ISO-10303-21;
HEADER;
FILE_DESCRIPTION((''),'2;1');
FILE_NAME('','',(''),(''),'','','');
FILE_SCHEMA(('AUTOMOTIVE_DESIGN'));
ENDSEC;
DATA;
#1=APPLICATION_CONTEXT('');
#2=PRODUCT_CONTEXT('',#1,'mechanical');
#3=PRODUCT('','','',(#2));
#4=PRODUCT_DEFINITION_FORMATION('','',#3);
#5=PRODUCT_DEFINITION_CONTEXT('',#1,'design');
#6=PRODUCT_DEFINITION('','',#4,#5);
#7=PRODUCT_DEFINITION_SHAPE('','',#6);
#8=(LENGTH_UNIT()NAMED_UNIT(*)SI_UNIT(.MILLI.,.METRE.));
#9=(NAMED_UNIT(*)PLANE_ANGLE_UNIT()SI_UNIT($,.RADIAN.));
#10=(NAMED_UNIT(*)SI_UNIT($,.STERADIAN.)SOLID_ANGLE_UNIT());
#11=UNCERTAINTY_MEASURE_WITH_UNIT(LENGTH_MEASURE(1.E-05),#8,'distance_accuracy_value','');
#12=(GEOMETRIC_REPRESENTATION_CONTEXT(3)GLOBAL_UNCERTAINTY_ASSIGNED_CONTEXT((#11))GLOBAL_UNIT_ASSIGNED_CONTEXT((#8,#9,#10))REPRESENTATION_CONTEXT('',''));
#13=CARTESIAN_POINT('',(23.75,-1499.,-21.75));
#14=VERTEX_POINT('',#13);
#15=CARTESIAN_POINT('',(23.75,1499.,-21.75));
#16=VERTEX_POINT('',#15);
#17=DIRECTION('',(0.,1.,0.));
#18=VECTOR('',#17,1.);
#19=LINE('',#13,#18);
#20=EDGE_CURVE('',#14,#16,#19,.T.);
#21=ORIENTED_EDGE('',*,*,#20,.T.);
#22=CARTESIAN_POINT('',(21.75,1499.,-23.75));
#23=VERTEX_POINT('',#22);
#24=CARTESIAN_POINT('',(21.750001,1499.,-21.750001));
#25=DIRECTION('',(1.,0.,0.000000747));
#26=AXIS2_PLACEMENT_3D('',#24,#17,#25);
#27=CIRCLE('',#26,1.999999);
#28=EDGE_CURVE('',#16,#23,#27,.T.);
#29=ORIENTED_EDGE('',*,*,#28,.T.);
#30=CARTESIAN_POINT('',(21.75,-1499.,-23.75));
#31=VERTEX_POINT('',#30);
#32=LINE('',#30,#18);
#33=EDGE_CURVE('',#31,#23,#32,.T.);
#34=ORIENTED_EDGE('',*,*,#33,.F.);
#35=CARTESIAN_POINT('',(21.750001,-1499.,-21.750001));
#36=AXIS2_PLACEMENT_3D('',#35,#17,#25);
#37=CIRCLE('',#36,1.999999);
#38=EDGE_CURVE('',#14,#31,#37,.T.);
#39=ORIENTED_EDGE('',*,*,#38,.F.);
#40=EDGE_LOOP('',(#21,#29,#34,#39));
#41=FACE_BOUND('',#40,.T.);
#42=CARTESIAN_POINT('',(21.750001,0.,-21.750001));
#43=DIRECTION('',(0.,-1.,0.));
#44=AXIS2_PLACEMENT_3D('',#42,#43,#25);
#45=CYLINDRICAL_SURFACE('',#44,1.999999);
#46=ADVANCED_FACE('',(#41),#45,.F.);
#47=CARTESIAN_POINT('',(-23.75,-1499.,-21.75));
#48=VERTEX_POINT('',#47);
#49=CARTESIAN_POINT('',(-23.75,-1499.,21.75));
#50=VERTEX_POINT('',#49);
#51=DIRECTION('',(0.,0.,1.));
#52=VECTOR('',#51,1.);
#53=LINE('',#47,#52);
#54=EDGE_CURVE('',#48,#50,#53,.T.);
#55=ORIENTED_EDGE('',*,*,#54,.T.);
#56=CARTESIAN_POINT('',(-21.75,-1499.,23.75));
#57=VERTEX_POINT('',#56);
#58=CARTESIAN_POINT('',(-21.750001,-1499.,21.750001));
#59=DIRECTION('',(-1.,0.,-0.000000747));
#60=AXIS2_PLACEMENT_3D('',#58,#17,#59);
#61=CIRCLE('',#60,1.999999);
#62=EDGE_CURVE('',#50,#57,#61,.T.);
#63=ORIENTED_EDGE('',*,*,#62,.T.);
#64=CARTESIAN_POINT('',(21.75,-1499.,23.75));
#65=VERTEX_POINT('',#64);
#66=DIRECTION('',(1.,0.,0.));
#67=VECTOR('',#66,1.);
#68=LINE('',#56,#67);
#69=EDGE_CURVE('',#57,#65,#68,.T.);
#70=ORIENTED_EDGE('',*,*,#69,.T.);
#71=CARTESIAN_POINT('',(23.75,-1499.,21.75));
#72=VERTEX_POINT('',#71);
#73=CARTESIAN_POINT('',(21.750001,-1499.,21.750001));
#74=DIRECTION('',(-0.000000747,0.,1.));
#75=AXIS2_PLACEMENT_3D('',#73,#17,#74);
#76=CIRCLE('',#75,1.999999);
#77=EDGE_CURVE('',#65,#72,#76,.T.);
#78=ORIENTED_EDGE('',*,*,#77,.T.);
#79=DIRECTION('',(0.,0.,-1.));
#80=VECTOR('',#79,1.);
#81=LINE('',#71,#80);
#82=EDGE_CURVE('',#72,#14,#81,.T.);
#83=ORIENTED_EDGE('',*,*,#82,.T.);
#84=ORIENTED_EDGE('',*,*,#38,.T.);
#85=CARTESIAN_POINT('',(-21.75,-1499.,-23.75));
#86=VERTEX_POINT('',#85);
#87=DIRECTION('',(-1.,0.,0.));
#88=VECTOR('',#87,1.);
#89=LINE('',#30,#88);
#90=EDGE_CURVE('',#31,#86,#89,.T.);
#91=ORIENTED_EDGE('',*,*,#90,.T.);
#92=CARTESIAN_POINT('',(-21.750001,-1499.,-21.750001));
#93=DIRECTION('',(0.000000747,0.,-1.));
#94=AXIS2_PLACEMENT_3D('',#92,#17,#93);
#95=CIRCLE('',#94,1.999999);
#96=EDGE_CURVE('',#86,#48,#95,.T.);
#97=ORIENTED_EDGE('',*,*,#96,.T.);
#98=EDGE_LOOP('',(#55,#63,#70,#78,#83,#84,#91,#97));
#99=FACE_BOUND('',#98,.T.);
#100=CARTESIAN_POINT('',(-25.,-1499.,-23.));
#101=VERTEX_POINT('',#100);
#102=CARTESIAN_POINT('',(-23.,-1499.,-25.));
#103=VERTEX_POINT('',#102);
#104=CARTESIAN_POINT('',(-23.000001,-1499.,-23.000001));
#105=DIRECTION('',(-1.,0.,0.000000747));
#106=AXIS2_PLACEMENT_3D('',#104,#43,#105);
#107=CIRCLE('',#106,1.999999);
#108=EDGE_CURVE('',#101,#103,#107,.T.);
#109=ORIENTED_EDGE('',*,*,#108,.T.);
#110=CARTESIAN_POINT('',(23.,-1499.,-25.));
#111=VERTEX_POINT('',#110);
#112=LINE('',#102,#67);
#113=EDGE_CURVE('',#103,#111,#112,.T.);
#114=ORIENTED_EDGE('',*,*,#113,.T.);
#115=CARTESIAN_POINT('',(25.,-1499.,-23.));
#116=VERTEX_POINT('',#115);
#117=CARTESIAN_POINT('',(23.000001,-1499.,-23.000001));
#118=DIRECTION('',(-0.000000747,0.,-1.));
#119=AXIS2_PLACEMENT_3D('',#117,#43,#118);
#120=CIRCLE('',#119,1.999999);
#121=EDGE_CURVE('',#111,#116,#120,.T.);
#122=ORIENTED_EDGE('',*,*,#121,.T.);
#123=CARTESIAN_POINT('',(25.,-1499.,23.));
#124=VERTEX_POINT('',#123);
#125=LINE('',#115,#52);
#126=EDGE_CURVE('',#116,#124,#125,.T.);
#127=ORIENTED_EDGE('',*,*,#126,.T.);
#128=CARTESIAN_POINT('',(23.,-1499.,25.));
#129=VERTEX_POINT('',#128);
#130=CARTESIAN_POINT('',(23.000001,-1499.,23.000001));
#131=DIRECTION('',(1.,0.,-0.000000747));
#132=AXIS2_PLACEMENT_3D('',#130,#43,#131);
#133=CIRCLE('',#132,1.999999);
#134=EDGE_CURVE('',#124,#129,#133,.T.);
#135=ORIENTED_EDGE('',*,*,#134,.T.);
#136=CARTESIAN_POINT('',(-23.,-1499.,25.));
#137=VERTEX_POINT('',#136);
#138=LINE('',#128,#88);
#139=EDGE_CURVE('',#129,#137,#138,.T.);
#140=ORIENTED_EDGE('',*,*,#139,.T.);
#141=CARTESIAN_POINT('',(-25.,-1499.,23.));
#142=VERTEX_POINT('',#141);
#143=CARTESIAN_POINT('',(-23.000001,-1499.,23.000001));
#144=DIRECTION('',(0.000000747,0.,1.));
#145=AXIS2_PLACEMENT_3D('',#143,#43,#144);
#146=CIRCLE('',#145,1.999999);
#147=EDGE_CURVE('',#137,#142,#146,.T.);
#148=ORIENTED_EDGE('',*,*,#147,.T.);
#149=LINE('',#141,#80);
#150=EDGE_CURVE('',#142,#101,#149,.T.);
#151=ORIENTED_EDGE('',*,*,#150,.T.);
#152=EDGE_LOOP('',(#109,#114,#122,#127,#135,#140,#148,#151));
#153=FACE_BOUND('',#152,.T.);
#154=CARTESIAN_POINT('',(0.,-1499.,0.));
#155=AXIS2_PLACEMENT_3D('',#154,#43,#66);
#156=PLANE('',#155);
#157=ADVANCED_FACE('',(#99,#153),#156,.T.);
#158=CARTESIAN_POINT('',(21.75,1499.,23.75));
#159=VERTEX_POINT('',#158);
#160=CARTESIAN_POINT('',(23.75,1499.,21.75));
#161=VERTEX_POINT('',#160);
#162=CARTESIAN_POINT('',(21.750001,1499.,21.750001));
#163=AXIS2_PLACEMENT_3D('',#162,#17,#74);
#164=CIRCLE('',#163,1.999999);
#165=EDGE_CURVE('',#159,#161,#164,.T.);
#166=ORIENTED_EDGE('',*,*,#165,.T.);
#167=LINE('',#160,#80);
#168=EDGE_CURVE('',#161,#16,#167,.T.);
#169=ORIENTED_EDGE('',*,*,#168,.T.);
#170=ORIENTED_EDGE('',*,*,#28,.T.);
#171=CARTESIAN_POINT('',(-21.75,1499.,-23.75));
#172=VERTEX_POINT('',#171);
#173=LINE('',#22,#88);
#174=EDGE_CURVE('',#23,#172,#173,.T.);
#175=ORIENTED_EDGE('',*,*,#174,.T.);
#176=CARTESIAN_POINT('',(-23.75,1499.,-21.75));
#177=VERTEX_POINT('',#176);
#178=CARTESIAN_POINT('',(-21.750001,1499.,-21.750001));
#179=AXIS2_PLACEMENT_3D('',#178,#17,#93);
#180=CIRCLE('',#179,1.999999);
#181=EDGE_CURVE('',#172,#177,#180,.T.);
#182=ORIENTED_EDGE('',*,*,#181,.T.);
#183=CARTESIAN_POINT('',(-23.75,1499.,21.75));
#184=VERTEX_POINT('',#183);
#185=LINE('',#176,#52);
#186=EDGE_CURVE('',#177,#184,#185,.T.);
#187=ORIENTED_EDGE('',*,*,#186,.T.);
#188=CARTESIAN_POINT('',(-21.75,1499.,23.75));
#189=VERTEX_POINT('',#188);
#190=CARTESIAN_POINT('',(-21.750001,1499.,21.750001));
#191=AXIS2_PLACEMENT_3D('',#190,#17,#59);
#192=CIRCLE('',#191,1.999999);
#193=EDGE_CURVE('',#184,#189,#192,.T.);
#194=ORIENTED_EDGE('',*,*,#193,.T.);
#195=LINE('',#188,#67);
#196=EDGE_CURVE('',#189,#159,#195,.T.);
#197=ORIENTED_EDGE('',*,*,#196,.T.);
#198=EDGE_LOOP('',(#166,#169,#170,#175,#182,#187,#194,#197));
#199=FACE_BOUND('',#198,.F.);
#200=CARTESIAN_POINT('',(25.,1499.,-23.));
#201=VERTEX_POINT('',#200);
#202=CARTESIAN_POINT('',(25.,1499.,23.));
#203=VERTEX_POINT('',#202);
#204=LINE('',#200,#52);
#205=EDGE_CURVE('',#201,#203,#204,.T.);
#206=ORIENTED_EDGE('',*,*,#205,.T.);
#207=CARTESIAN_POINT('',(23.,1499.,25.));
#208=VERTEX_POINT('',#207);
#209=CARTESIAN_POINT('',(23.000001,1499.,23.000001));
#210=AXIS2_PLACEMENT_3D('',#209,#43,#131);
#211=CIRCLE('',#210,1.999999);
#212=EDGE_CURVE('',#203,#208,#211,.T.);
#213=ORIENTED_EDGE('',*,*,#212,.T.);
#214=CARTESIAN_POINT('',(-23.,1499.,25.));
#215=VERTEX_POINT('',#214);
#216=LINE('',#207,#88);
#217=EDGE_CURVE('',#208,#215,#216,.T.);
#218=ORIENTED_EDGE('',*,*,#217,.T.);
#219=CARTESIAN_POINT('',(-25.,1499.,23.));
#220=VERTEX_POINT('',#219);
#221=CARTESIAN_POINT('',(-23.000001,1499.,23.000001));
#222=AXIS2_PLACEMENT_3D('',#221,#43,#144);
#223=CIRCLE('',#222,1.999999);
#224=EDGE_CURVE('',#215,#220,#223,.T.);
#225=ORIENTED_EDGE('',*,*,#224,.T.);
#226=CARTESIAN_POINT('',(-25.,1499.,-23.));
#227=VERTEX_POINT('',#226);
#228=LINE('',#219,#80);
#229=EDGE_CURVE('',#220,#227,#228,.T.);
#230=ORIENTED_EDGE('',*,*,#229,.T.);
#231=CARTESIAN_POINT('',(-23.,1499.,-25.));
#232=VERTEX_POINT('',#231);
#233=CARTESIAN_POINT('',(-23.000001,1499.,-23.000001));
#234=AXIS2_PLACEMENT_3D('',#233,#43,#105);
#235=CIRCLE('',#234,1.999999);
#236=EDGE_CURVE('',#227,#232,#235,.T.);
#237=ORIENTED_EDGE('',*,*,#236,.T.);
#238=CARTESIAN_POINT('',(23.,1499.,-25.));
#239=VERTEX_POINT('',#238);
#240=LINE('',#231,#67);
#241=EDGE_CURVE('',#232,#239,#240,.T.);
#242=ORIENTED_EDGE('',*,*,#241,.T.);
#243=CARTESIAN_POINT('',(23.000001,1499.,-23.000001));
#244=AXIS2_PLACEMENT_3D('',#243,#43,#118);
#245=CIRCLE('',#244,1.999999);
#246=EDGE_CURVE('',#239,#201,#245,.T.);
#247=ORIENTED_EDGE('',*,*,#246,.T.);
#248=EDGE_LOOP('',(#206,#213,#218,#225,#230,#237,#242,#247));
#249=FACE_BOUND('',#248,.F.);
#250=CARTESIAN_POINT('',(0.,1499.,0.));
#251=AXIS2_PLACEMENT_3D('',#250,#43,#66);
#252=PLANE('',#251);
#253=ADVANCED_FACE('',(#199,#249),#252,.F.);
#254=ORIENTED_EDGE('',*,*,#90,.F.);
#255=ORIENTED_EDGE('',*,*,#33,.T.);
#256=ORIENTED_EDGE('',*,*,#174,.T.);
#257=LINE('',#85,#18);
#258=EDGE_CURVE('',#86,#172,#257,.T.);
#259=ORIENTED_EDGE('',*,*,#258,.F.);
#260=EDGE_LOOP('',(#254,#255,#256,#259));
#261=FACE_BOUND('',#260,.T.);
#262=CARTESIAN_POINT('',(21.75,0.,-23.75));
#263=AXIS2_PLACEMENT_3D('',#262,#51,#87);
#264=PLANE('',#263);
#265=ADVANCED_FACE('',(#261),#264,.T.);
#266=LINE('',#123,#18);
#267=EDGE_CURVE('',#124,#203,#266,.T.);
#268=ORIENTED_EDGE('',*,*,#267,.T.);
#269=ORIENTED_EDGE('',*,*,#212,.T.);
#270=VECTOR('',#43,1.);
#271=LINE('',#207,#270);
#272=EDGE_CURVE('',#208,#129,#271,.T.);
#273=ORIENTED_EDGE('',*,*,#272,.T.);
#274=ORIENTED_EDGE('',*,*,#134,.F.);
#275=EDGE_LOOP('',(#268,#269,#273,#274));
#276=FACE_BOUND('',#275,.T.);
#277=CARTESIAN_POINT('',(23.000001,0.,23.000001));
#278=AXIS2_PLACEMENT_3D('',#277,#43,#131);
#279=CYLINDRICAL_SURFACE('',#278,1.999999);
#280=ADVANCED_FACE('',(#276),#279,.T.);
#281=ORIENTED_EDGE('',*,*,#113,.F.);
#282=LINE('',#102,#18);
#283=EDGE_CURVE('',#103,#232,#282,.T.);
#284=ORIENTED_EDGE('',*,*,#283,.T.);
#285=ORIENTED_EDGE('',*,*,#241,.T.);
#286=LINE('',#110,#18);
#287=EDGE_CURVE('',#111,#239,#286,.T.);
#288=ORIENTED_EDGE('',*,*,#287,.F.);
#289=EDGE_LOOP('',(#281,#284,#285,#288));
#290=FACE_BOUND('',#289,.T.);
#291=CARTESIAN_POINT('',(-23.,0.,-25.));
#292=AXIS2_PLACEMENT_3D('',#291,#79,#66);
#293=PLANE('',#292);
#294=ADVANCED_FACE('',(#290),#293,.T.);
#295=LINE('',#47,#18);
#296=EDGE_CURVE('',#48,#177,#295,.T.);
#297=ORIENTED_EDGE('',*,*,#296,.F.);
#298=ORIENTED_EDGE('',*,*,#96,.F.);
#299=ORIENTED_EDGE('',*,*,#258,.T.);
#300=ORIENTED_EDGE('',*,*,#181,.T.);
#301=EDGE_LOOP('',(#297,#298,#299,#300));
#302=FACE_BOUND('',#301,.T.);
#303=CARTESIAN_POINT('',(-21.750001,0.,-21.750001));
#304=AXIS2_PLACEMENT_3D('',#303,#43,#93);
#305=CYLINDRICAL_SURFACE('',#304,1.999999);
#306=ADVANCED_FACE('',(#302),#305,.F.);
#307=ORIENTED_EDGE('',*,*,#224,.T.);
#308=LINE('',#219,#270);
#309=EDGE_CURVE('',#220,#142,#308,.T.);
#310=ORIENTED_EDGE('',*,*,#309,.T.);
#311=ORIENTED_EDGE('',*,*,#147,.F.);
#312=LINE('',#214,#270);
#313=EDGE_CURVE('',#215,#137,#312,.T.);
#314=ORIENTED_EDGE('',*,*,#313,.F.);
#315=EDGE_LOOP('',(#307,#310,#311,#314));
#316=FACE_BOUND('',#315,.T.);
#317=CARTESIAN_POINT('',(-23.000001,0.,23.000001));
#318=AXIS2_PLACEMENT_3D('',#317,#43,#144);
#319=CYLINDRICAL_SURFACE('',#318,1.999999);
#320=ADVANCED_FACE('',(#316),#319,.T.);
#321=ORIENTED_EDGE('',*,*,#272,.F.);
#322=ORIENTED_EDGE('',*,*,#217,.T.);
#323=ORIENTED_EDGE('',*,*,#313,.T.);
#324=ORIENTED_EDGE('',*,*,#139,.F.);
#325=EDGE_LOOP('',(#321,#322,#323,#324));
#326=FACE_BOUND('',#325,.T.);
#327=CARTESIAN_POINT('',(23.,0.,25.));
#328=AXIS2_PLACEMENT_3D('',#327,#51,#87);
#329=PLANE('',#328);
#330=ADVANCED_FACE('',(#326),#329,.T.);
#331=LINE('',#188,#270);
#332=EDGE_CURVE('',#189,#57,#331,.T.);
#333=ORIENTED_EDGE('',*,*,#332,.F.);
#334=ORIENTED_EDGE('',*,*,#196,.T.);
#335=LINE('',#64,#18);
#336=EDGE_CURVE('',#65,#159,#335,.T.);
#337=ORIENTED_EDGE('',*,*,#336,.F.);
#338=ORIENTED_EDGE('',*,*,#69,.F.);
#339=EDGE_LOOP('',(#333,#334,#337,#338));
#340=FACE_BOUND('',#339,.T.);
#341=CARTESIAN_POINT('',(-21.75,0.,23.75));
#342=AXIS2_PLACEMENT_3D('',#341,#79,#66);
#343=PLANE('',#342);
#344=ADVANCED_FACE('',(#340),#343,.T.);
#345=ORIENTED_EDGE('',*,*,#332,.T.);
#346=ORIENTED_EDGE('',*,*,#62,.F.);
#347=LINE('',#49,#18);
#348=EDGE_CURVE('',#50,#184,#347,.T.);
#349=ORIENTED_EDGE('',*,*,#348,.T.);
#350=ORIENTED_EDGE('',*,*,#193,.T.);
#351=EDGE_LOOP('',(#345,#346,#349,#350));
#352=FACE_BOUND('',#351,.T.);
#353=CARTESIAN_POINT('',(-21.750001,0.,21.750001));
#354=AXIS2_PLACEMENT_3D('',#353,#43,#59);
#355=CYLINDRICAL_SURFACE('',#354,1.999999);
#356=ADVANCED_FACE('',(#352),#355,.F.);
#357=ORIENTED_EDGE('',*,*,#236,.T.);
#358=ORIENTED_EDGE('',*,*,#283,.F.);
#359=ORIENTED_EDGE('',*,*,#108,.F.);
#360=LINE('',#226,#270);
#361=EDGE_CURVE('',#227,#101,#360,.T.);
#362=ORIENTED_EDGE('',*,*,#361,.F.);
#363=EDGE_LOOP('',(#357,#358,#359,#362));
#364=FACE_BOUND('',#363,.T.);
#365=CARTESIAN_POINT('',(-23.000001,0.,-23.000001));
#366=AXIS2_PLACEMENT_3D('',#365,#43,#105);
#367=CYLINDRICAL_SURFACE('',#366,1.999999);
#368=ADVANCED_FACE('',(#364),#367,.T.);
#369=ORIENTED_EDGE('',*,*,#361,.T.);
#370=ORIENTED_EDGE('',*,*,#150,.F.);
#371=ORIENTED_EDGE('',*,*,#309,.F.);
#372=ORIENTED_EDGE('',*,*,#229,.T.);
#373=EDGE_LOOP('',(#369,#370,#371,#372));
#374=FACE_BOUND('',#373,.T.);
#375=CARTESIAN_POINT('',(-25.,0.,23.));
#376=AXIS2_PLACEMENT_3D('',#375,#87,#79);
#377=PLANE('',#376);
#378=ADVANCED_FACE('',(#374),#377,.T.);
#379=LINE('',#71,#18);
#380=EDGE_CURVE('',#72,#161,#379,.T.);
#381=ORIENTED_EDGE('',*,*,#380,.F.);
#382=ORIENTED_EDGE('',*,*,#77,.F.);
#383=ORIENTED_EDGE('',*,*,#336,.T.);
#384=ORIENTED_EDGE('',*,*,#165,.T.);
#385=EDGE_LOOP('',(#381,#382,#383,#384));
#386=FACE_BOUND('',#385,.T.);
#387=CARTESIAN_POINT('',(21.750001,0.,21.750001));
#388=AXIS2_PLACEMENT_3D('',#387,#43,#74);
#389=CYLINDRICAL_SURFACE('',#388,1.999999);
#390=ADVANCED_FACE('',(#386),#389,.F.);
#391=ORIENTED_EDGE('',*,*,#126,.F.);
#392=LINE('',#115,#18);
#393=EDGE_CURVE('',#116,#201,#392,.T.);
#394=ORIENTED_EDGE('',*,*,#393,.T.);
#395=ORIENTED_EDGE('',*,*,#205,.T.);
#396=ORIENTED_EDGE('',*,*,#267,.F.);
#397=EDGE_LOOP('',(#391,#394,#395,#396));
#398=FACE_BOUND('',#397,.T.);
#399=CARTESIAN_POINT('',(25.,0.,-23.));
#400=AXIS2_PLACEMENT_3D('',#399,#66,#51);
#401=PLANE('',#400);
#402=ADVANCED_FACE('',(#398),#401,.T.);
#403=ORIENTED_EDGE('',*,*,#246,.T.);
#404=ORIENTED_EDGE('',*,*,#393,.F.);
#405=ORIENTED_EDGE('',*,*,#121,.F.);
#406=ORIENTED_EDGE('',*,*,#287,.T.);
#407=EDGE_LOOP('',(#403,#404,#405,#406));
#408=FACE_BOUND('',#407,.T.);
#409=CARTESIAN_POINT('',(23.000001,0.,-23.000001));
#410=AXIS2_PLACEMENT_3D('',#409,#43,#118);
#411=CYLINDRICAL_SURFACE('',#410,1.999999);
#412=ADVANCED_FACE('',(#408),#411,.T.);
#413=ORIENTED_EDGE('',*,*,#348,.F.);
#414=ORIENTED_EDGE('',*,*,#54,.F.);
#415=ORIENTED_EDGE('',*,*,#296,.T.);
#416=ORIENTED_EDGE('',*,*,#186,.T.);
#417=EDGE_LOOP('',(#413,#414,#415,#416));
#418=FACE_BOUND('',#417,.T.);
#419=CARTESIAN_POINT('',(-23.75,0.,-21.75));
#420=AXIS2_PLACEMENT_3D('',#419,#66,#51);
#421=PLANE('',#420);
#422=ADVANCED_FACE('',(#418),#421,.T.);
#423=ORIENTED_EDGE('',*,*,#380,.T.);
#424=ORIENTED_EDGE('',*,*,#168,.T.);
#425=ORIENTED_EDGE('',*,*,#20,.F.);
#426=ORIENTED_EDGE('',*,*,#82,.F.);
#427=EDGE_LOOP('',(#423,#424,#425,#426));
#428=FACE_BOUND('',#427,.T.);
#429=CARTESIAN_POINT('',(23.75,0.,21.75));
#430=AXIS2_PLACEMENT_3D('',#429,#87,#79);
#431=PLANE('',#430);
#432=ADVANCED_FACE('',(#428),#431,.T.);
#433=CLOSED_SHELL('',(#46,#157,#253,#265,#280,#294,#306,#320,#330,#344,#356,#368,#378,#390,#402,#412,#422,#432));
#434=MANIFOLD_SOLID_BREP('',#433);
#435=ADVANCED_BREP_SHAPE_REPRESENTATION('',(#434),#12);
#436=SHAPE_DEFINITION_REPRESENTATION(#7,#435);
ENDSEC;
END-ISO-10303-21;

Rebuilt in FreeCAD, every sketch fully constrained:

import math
import FreeCAD as App
import Part
import Sketcher

V = App.Vector
Q = App.Units.Quantity

doc = App.newDocument("Part")
params = doc.addObject("Spreadsheet::Sheet", "Params")
for row, (alias, value) in enumerate([
    ("sketch1_radius", "1.999999 mm"),
    ("sketch1_width", "46 mm"),
    ("sketch1_width2", "43.5 mm"),
    ("pad1_length", "2998 mm"),
], start=1):
    params.set(f"A{row}", alias)
    params.set(f"B{row}", "=" + value)
    params.setAlias(f"B{row}", alias)

body = doc.addObject("PartDesign::Body", "Body")

# Sketch on XZ plane
sketch1 = body.newObject("Sketcher::SketchObject", "Sketch")
sketch1.AttachmentSupport = (doc.getObject("XZ_Plane"), [""])
sketch1.MapMode = "FlatFace"
sketch1.addGeometry(Part.ArcOfCircle(Part.Circle(V(23.000001, 23.000001, 0), V(0, 0, 1), 1.999999), math.radians(-0.000043), math.radians(90.000043)), False)
sketch1.addGeometry(Part.LineSegment(V(23, 25, 0), V(-23, 25, 0)), False)
sketch1.addGeometry(Part.ArcOfCircle(Part.Circle(V(-23.000001, 23.000001, 0), V(0, 0, 1), 1.999999), math.radians(89.999957), math.radians(180.000043)), False)
sketch1.addGeometry(Part.LineSegment(V(-25, 23, 0), V(-25, -23, 0)), False)
sketch1.addGeometry(Part.ArcOfCircle(Part.Circle(V(-23.000001, -23.000001, 0), V(0, 0, 1), 1.999999), math.radians(179.999957), math.radians(270.000043)), False)
sketch1.addGeometry(Part.LineSegment(V(-23, -25, 0), V(23, -25, 0)), False)
sketch1.addGeometry(Part.ArcOfCircle(Part.Circle(V(23.000001, -23.000001, 0), V(0, 0, 1), 1.999999), math.radians(-90.000043), math.radians(0.000043)), False)
sketch1.addGeometry(Part.LineSegment(V(25, -23, 0), V(25, 23, 0)), False)
sketch1.addGeometry(Part.ArcOfCircle(Part.Circle(V(-21.750001, 21.750001, 0), V(0, 0, 1), 1.999999), math.radians(89.999957), math.radians(180.000043)), False)
sketch1.addGeometry(Part.LineSegment(V(-21.75, 23.75, 0), V(21.75, 23.75, 0)), False)
sketch1.addGeometry(Part.ArcOfCircle(Part.Circle(V(21.750001, 21.750001, 0), V(0, 0, 1), 1.999999), math.radians(-0.000043), math.radians(90.000043)), False)
sketch1.addGeometry(Part.LineSegment(V(23.75, 21.75, 0), V(23.75, -21.75, 0)), False)
sketch1.addGeometry(Part.ArcOfCircle(Part.Circle(V(21.750001, -21.750001, 0), V(0, 0, 1), 1.999999), math.radians(-90.000043), math.radians(0.000043)), False)
sketch1.addGeometry(Part.LineSegment(V(21.75, -23.75, 0), V(-21.75, -23.75, 0)), False)
sketch1.addGeometry(Part.ArcOfCircle(Part.Circle(V(-21.750001, -21.750001, 0), V(0, 0, 1), 1.999999), math.radians(179.999957), math.radians(270.000043)), False)
sketch1.addGeometry(Part.LineSegment(V(-23.75, -21.75, 0), V(-23.75, 21.75, 0)), False)
sketch1.addConstraint(Sketcher.Constraint("Tangent", 0, 2, 1, 1))
sketch1.addConstraint(Sketcher.Constraint("Tangent", 1, 2, 2, 1))
sketch1.addConstraint(Sketcher.Constraint("Tangent", 2, 2, 3, 1))
sketch1.addConstraint(Sketcher.Constraint("Tangent", 3, 2, 4, 1))
sketch1.addConstraint(Sketcher.Constraint("Tangent", 4, 2, 5, 1))
sketch1.addConstraint(Sketcher.Constraint("Tangent", 5, 2, 6, 1))
sketch1.addConstraint(Sketcher.Constraint("Tangent", 6, 2, 7, 1))
sketch1.addConstraint(Sketcher.Constraint("Tangent", 7, 2, 0, 1))
sketch1.addConstraint(Sketcher.Constraint("Tangent", 8, 1, 9, 1))
sketch1.addConstraint(Sketcher.Constraint("Tangent", 9, 2, 10, 2))
sketch1.addConstraint(Sketcher.Constraint("Tangent", 10, 1, 11, 1))
sketch1.addConstraint(Sketcher.Constraint("Tangent", 11, 2, 12, 2))
sketch1.addConstraint(Sketcher.Constraint("Tangent", 12, 1, 13, 1))
sketch1.addConstraint(Sketcher.Constraint("Tangent", 13, 2, 14, 2))
sketch1.addConstraint(Sketcher.Constraint("Tangent", 14, 1, 15, 1))
sketch1.addConstraint(Sketcher.Constraint("Tangent", 15, 2, 8, 2))
sketch1.addConstraint(Sketcher.Constraint("Horizontal", 1))
sketch1.addConstraint(Sketcher.Constraint("Vertical", 3))
sketch1.addConstraint(Sketcher.Constraint("Horizontal", 5))
sketch1.addConstraint(Sketcher.Constraint("Vertical", 7))
sketch1.addConstraint(Sketcher.Constraint("Horizontal", 9))
sketch1.addConstraint(Sketcher.Constraint("Vertical", 11))
sketch1.addConstraint(Sketcher.Constraint("Horizontal", 13))
sketch1.addConstraint(Sketcher.Constraint("Vertical", 15))
sketch1.addConstraint(Sketcher.Constraint("Equal", 0, 2))
sketch1.addConstraint(Sketcher.Constraint("Equal", 2, 4))
sketch1.addConstraint(Sketcher.Constraint("Equal", 4, 6))
sketch1.addConstraint(Sketcher.Constraint("Equal", 6, 8))
sketch1.addConstraint(Sketcher.Constraint("Equal", 8, 10))
sketch1.addConstraint(Sketcher.Constraint("Equal", 10, 12))
sketch1.addConstraint(Sketcher.Constraint("Equal", 12, 14))
sketch1.addConstraint(Sketcher.Constraint("Symmetric", 0, 3, 4, 3, -1, 1))
sketch1.addConstraint(Sketcher.Constraint("Symmetric", 8, 3, 12, 3, -1, 1))
sketch1.addConstraint(Sketcher.Constraint("Equal", 5, 3))
sketch1.addConstraint(Sketcher.Constraint("Equal", 13, 11))
sketch1.addConstraint(Sketcher.Constraint("Radius", 0, Q("1.999999 mm")))
sketch1.addConstraint(Sketcher.Constraint("DistanceX", 1, 2, 1, 1, Q("46 mm")))
sketch1.addConstraint(Sketcher.Constraint("DistanceX", 9, 1, 9, 2, Q("43.5 mm")))
sketch1.setExpression("Constraints[35]", "Params.sketch1_radius")
sketch1.setExpression("Constraints[36]", "Params.sketch1_width")
sketch1.setExpression("Constraints[37]", "Params.sketch1_width2")
pad1 = body.newObject("PartDesign::Pad", "Pad")
pad1.Profile = sketch1
pad1.setExpression("Length", "Params.pad1_length")
pad1.Midplane = True

doc.recompute()
